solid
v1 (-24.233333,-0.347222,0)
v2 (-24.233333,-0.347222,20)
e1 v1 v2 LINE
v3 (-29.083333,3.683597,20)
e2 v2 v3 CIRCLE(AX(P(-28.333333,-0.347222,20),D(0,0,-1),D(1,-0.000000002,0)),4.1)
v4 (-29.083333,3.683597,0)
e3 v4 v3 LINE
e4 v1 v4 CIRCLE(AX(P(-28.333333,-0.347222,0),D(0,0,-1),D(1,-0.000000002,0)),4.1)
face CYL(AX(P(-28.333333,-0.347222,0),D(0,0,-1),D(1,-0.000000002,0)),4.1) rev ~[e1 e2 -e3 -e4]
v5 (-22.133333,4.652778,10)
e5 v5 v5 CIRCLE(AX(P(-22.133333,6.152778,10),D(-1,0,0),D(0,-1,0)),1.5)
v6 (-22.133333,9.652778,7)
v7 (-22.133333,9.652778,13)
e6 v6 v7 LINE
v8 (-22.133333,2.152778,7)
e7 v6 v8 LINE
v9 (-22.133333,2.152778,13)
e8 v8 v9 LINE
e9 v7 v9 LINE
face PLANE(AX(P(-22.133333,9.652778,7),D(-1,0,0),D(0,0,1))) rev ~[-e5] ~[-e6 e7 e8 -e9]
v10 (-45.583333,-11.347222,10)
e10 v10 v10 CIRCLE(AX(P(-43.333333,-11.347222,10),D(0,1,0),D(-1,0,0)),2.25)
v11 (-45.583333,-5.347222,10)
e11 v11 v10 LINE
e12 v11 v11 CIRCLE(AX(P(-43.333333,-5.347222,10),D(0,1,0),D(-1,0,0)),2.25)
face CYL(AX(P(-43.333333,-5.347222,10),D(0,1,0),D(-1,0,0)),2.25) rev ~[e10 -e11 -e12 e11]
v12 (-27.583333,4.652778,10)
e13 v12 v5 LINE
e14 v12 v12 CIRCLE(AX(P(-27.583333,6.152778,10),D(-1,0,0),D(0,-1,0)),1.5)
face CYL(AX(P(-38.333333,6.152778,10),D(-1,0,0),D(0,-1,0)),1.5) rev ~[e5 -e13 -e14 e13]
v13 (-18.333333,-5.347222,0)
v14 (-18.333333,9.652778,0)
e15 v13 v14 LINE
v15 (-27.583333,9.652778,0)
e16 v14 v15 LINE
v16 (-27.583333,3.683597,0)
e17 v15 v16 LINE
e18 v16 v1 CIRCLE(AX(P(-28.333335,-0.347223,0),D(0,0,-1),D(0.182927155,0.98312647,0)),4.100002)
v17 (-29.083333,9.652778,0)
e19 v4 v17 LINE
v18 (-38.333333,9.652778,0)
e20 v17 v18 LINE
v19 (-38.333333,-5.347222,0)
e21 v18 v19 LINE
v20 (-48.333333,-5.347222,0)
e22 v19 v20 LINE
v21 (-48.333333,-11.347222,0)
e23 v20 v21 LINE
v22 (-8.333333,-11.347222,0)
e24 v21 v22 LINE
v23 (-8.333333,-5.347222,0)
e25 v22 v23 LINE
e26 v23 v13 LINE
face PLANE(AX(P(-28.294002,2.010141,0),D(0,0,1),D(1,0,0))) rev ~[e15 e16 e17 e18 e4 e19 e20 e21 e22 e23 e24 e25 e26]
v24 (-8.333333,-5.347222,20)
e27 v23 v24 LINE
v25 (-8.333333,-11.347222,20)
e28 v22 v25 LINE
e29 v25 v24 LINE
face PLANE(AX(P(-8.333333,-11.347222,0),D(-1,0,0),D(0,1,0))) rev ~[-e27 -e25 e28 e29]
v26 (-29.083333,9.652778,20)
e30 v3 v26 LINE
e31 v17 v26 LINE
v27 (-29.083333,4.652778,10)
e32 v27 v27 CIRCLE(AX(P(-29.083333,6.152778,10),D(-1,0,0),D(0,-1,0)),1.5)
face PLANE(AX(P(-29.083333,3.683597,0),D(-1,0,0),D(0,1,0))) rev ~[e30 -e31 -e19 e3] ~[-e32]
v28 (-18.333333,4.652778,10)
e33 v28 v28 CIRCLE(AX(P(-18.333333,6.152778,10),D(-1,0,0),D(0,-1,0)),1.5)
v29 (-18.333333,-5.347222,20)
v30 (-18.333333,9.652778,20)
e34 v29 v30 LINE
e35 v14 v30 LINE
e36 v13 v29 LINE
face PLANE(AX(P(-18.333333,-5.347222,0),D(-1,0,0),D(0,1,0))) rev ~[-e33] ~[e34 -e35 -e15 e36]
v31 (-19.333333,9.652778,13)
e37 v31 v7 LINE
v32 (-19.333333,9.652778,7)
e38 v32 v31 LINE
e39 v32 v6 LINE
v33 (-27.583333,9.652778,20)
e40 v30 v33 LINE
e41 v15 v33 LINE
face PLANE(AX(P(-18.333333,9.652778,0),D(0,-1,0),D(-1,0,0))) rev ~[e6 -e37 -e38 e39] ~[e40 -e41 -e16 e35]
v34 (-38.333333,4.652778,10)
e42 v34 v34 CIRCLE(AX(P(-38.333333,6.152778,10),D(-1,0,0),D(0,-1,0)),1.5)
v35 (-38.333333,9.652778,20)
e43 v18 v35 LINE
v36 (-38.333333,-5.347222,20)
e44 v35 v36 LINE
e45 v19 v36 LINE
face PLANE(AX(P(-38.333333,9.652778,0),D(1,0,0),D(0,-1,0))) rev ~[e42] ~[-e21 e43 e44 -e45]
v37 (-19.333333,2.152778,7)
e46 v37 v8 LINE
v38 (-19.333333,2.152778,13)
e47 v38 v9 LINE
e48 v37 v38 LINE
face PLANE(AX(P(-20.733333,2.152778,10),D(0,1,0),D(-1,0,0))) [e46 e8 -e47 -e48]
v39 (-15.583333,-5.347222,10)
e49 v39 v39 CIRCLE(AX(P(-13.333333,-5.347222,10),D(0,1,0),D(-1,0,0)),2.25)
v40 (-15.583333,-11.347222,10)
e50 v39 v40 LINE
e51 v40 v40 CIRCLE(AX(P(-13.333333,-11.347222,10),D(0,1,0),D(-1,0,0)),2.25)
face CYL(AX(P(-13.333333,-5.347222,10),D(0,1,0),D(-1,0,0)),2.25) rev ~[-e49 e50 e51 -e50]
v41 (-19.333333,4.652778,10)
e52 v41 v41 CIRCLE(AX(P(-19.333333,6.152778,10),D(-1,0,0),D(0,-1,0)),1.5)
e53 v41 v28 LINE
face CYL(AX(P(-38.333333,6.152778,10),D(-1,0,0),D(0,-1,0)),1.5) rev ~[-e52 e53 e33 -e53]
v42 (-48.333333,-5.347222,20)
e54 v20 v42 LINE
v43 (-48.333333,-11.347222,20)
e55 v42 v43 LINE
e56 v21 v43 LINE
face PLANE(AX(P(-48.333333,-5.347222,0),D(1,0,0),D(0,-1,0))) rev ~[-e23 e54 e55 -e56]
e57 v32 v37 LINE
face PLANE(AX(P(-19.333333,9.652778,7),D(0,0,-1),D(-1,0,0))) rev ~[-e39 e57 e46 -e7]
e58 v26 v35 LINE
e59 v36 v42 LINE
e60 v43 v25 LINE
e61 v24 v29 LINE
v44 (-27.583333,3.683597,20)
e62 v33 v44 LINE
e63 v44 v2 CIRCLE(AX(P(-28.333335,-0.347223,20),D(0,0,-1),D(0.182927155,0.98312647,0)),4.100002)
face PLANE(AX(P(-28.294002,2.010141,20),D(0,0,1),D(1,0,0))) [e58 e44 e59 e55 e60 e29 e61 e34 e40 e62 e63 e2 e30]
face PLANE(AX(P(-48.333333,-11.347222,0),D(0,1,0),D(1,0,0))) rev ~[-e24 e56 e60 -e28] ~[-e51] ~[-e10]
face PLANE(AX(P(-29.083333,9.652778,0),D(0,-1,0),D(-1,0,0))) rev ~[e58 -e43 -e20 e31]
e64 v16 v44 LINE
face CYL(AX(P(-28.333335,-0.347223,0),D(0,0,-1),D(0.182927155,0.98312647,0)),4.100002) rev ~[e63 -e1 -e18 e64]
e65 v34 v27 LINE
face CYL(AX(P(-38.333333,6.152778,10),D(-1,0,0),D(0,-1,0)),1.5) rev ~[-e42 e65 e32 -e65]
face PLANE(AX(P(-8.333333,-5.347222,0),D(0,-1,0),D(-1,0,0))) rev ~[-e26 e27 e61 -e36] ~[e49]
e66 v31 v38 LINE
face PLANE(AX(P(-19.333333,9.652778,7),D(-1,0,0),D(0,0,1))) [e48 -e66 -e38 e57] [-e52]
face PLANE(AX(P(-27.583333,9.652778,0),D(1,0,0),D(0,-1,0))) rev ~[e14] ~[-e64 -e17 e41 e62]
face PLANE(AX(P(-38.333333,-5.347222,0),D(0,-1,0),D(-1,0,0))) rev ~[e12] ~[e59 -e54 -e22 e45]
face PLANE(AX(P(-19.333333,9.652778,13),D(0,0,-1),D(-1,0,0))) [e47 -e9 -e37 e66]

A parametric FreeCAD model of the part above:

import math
import FreeCAD as App
import Part
import Sketcher

V = App.Vector


def add_polygon(sketch, points):
    """Adds a closed chain of lines whose ends are joined by coincident constraints."""
    first, n = sketch.GeometryCount, len(points)
    for a, b in zip(points, points[1:] + points[:1]):
        sketch.addGeometry(Part.LineSegment(App.Vector(*a, 0), App.Vector(*b, 0)), False)
    for i in range(n):
        sketch.addConstraint(Sketcher.Constraint("Coincident", first + i, 2, first + (i + 1) % n, 1))

doc = App.newDocument("Part")
body = doc.addObject("PartDesign::Body", "Body")

# Sketch on XY plane
sketch1 = doc.addObject("Sketcher::SketchObject", "Sketch")
body.addObject(sketch1)
sketch1.AttachmentSupport = (doc.XY_Plane, [""])
sketch1.MapMode = "FlatFace"
sketch1.addGeometry([
    Part.LineSegment(V(-38.3, 9.7, 0), V(-38.3, -5.3, 0)),  # 0
    Part.LineSegment(V(-38.3, -5.3, 0), V(-48.3, -5.3, 0)),  # 1
    Part.LineSegment(V(-48.3, -5.3, 0), V(-48.3, -11.3, 0)),  # 2
    Part.LineSegment(V(-48.3, -11.3, 0), V(-8.3, -11.3, 0)),  # 3
    Part.LineSegment(V(-8.3, -11.3, 0), V(-8.3, -5.3, 0)),  # 4
    Part.LineSegment(V(-8.3, -5.3, 0), V(-18.3, -5.3, 0)),  # 5
    Part.LineSegment(V(-18.3, -5.3, 0), V(-18.3, 9.7, 0)),  # 6
    Part.LineSegment(V(-18.3, 9.7, 0), V(-27.6, 9.7, 0)),  # 7
    Part.LineSegment(V(-27.6, 9.7, 0), V(-27.6, 3.7, 0)),  # 8
    Part.ArcOfCircle(Part.Circle(V(-28.3, -0.3, 0), V(0, 0, 1), 4.1), math.radians(0), math.radians(79)),  # 9
    Part.ArcOfCircle(Part.Circle(V(-28.3, -0.3, 0), V(0, 0, 1), 4.1), math.radians(101), math.radians(360)),  # 10
    Part.LineSegment(V(-29.1, 3.7, 0), V(-29.1, 9.7, 0)),  # 11
    Part.LineSegment(V(-29.1, 9.7, 0), V(-38.3, 9.7, 0)),  # 12
], False)
sketch1.addConstraint([
    Sketcher.Constraint("Coincident", 0, 2, 1, 1),
    Sketcher.Constraint("Coincident", 1, 2, 2, 1),
    Sketcher.Constraint("Coincident", 2, 2, 3, 1),
    Sketcher.Constraint("Coincident", 3, 2, 4, 1),
    Sketcher.Constraint("Coincident", 4, 2, 5, 1),
    Sketcher.Constraint("Coincident", 5, 2, 6, 1),
    Sketcher.Constraint("Coincident", 6, 2, 7, 1),
    Sketcher.Constraint("Coincident", 7, 2, 8, 1),
    Sketcher.Constraint("Coincident", 8, 2, 9, 2),
    Sketcher.Constraint("Tangent", 9, 1, 10, 2),
    Sketcher.Constraint("Coincident", 10, 1, 11, 1),
    Sketcher.Constraint("Coincident", 11, 2, 12, 1),
    Sketcher.Constraint("Coincident", 12, 2, 0, 1),
    Sketcher.Constraint("Vertical", 0),
    Sketcher.Constraint("Horizontal", 1),
    Sketcher.Constraint("Vertical", 2),
    Sketcher.Constraint("Horizontal", 3),
    Sketcher.Constraint("Vertical", 4),
    Sketcher.Constraint("Horizontal", 5),
    Sketcher.Constraint("Vertical", 6),
    Sketcher.Constraint("Horizontal", 7),
    Sketcher.Constraint("Vertical", 8),
    Sketcher.Constraint("Vertical", 11),
    Sketcher.Constraint("Horizontal", 12),
    Sketcher.Constraint("Equal", 9, 10),
    Sketcher.Constraint("Horizontal", 1, 2, 4, 2),
    Sketcher.Constraint("Horizontal", 10, 3, 9, 1),
    Sketcher.Constraint("Horizontal", 8, 2, 10, 1),
    Sketcher.Constraint("Horizontal", 7, 2, 11, 2),
    Sketcher.Constraint("Equal", 1, 5),
    Sketcher.Constraint("Equal", 7, 12),
    Sketcher.Constraint("Radius", 9, 4.100002),
    Sketcher.Constraint("DistanceX", 1, 2, 1, 1, 10.0),
    Sketcher.Constraint("DistanceX", 3, 1, 3, 2, 40.0),
    Sketcher.Constraint("DistanceY", 0, 2, 0, 1, 15.0),
    Sketcher.Constraint("DistanceY", 2, 2, 2, 1, 6.0),
    Sketcher.Constraint("DistanceY", 0, 2, 9, 3, 4.999999),
    Sketcher.Constraint("DistanceX", 7, 2, 7, 1, 9.25),
    Sketcher.Constraint("DistanceY", 10, 3, -1, 1, 0.347222),
    Sketcher.Constraint("DistanceX", 9, 3, -1, 1, 28.333335),
])
pad1 = doc.addObject("PartDesign::Pad", "Pad")
body.addObject(pad1)
pad1.Profile = sketch1
pad1.Length = 20

# Sketch on YZ plane
sketch2 = doc.addObject("Sketcher::SketchObject", "Sketch001")
body.addObject(sketch2)
sketch2.AttachmentSupport = (doc.YZ_Plane, [""])
sketch2.MapMode = "FlatFace"
sketch2.AttachmentOffset = App.Placement(V(0, 0, -38.333333), App.Rotation())
sketch2.addGeometry(Part.Circle(V(6.2, 10, 0), V(0, 0, 1), 1.5), False)
sketch2.addConstraint([
    Sketcher.Constraint("Diameter", 0, 3.0),
    Sketcher.Constraint("DistanceY", -1, 1, 0, 3, 10.0),
    Sketcher.Constraint("DistanceX", -1, 1, 0, 3, 6.152778),
])
pocket1 = doc.addObject("PartDesign::Pocket", "Pocket")
body.addObject(pocket1)
pocket1.Profile = sketch2
pocket1.Length = 20
pocket1.Reversed = True

# Sketch on XZ plane
sketch3 = doc.addObject("Sketcher::SketchObject", "Sketch002")
body.addObject(sketch3)
sketch3.AttachmentSupport = (doc.XZ_Plane, [""])
sketch3.MapMode = "FlatFace"
sketch3.AttachmentOffset = App.Placement(V(0, 0, -9.652778), App.Rotation())
add_polygon(sketch3, [(-19.3, 13), (-19.3, 7), (-22.1, 7), (-22.1, 13)])  # lines 0-3
sketch3.addConstraint([
    Sketcher.Constraint("Vertical", 0),
    Sketcher.Constraint("Horizontal", 1),
    Sketcher.Constraint("Vertical", 2),
    Sketcher.Constraint("Horizontal", 3),
    Sketcher.Constraint("DistanceY", 0, 2, 0, 1, 6.0),
    Sketcher.Constraint("DistanceX", 1, 2, 1, 1, 2.8),
    Sketcher.Constraint("DistanceY", -1, 1, 0, 2, 7.0),
    Sketcher.Constraint("DistanceX", 0, 2, -1, 1, 19.333333),
])
pocket2 = doc.addObject("PartDesign::Pocket", "Pocket001")
body.addObject(pocket2)
pocket2.Profile = sketch3
pocket2.Length = 7.5
pocket2.Reversed = True

# Sketch on XZ plane
sketch4 = doc.addObject("Sketcher::SketchObject", "Sketch003")
body.addObject(sketch4)
sketch4.AttachmentSupport = (doc.XZ_Plane, [""])
sketch4.MapMode = "FlatFace"
sketch4.AttachmentOffset = App.Placement(V(0, 0, 5.347222), App.Rotation())
sketch4.addGeometry([
    Part.Circle(V(-43.3, 10, 0), V(0, 0, 1), 2.2),
    Part.Circle(V(-13.3, 10, 0), V(0, 0, 1), 2.2),
], False)
sketch4.addConstraint([
    Sketcher.Constraint("Equal", 0, 1),
    Sketcher.Constraint("Horizontal", 0, 3, 1, 3),
    Sketcher.Constraint("Diameter", 0, 4.5),
    Sketcher.Constraint("DistanceY", -1, 1, 0, 3, 10.0),
    Sketcher.Constraint("DistanceX", 0, 3, 1, 3, 30.0),
    Sketcher.Constraint("DistanceX", 0, 3, -1, 1, 43.333333),
])
pocket3 = doc.addObject("PartDesign::Pocket", "Pocket002")
body.addObject(pocket3)
pocket3.Profile = sketch4
pocket3.Length = 6
pocket3.Reversed = True

doc.recompute()
